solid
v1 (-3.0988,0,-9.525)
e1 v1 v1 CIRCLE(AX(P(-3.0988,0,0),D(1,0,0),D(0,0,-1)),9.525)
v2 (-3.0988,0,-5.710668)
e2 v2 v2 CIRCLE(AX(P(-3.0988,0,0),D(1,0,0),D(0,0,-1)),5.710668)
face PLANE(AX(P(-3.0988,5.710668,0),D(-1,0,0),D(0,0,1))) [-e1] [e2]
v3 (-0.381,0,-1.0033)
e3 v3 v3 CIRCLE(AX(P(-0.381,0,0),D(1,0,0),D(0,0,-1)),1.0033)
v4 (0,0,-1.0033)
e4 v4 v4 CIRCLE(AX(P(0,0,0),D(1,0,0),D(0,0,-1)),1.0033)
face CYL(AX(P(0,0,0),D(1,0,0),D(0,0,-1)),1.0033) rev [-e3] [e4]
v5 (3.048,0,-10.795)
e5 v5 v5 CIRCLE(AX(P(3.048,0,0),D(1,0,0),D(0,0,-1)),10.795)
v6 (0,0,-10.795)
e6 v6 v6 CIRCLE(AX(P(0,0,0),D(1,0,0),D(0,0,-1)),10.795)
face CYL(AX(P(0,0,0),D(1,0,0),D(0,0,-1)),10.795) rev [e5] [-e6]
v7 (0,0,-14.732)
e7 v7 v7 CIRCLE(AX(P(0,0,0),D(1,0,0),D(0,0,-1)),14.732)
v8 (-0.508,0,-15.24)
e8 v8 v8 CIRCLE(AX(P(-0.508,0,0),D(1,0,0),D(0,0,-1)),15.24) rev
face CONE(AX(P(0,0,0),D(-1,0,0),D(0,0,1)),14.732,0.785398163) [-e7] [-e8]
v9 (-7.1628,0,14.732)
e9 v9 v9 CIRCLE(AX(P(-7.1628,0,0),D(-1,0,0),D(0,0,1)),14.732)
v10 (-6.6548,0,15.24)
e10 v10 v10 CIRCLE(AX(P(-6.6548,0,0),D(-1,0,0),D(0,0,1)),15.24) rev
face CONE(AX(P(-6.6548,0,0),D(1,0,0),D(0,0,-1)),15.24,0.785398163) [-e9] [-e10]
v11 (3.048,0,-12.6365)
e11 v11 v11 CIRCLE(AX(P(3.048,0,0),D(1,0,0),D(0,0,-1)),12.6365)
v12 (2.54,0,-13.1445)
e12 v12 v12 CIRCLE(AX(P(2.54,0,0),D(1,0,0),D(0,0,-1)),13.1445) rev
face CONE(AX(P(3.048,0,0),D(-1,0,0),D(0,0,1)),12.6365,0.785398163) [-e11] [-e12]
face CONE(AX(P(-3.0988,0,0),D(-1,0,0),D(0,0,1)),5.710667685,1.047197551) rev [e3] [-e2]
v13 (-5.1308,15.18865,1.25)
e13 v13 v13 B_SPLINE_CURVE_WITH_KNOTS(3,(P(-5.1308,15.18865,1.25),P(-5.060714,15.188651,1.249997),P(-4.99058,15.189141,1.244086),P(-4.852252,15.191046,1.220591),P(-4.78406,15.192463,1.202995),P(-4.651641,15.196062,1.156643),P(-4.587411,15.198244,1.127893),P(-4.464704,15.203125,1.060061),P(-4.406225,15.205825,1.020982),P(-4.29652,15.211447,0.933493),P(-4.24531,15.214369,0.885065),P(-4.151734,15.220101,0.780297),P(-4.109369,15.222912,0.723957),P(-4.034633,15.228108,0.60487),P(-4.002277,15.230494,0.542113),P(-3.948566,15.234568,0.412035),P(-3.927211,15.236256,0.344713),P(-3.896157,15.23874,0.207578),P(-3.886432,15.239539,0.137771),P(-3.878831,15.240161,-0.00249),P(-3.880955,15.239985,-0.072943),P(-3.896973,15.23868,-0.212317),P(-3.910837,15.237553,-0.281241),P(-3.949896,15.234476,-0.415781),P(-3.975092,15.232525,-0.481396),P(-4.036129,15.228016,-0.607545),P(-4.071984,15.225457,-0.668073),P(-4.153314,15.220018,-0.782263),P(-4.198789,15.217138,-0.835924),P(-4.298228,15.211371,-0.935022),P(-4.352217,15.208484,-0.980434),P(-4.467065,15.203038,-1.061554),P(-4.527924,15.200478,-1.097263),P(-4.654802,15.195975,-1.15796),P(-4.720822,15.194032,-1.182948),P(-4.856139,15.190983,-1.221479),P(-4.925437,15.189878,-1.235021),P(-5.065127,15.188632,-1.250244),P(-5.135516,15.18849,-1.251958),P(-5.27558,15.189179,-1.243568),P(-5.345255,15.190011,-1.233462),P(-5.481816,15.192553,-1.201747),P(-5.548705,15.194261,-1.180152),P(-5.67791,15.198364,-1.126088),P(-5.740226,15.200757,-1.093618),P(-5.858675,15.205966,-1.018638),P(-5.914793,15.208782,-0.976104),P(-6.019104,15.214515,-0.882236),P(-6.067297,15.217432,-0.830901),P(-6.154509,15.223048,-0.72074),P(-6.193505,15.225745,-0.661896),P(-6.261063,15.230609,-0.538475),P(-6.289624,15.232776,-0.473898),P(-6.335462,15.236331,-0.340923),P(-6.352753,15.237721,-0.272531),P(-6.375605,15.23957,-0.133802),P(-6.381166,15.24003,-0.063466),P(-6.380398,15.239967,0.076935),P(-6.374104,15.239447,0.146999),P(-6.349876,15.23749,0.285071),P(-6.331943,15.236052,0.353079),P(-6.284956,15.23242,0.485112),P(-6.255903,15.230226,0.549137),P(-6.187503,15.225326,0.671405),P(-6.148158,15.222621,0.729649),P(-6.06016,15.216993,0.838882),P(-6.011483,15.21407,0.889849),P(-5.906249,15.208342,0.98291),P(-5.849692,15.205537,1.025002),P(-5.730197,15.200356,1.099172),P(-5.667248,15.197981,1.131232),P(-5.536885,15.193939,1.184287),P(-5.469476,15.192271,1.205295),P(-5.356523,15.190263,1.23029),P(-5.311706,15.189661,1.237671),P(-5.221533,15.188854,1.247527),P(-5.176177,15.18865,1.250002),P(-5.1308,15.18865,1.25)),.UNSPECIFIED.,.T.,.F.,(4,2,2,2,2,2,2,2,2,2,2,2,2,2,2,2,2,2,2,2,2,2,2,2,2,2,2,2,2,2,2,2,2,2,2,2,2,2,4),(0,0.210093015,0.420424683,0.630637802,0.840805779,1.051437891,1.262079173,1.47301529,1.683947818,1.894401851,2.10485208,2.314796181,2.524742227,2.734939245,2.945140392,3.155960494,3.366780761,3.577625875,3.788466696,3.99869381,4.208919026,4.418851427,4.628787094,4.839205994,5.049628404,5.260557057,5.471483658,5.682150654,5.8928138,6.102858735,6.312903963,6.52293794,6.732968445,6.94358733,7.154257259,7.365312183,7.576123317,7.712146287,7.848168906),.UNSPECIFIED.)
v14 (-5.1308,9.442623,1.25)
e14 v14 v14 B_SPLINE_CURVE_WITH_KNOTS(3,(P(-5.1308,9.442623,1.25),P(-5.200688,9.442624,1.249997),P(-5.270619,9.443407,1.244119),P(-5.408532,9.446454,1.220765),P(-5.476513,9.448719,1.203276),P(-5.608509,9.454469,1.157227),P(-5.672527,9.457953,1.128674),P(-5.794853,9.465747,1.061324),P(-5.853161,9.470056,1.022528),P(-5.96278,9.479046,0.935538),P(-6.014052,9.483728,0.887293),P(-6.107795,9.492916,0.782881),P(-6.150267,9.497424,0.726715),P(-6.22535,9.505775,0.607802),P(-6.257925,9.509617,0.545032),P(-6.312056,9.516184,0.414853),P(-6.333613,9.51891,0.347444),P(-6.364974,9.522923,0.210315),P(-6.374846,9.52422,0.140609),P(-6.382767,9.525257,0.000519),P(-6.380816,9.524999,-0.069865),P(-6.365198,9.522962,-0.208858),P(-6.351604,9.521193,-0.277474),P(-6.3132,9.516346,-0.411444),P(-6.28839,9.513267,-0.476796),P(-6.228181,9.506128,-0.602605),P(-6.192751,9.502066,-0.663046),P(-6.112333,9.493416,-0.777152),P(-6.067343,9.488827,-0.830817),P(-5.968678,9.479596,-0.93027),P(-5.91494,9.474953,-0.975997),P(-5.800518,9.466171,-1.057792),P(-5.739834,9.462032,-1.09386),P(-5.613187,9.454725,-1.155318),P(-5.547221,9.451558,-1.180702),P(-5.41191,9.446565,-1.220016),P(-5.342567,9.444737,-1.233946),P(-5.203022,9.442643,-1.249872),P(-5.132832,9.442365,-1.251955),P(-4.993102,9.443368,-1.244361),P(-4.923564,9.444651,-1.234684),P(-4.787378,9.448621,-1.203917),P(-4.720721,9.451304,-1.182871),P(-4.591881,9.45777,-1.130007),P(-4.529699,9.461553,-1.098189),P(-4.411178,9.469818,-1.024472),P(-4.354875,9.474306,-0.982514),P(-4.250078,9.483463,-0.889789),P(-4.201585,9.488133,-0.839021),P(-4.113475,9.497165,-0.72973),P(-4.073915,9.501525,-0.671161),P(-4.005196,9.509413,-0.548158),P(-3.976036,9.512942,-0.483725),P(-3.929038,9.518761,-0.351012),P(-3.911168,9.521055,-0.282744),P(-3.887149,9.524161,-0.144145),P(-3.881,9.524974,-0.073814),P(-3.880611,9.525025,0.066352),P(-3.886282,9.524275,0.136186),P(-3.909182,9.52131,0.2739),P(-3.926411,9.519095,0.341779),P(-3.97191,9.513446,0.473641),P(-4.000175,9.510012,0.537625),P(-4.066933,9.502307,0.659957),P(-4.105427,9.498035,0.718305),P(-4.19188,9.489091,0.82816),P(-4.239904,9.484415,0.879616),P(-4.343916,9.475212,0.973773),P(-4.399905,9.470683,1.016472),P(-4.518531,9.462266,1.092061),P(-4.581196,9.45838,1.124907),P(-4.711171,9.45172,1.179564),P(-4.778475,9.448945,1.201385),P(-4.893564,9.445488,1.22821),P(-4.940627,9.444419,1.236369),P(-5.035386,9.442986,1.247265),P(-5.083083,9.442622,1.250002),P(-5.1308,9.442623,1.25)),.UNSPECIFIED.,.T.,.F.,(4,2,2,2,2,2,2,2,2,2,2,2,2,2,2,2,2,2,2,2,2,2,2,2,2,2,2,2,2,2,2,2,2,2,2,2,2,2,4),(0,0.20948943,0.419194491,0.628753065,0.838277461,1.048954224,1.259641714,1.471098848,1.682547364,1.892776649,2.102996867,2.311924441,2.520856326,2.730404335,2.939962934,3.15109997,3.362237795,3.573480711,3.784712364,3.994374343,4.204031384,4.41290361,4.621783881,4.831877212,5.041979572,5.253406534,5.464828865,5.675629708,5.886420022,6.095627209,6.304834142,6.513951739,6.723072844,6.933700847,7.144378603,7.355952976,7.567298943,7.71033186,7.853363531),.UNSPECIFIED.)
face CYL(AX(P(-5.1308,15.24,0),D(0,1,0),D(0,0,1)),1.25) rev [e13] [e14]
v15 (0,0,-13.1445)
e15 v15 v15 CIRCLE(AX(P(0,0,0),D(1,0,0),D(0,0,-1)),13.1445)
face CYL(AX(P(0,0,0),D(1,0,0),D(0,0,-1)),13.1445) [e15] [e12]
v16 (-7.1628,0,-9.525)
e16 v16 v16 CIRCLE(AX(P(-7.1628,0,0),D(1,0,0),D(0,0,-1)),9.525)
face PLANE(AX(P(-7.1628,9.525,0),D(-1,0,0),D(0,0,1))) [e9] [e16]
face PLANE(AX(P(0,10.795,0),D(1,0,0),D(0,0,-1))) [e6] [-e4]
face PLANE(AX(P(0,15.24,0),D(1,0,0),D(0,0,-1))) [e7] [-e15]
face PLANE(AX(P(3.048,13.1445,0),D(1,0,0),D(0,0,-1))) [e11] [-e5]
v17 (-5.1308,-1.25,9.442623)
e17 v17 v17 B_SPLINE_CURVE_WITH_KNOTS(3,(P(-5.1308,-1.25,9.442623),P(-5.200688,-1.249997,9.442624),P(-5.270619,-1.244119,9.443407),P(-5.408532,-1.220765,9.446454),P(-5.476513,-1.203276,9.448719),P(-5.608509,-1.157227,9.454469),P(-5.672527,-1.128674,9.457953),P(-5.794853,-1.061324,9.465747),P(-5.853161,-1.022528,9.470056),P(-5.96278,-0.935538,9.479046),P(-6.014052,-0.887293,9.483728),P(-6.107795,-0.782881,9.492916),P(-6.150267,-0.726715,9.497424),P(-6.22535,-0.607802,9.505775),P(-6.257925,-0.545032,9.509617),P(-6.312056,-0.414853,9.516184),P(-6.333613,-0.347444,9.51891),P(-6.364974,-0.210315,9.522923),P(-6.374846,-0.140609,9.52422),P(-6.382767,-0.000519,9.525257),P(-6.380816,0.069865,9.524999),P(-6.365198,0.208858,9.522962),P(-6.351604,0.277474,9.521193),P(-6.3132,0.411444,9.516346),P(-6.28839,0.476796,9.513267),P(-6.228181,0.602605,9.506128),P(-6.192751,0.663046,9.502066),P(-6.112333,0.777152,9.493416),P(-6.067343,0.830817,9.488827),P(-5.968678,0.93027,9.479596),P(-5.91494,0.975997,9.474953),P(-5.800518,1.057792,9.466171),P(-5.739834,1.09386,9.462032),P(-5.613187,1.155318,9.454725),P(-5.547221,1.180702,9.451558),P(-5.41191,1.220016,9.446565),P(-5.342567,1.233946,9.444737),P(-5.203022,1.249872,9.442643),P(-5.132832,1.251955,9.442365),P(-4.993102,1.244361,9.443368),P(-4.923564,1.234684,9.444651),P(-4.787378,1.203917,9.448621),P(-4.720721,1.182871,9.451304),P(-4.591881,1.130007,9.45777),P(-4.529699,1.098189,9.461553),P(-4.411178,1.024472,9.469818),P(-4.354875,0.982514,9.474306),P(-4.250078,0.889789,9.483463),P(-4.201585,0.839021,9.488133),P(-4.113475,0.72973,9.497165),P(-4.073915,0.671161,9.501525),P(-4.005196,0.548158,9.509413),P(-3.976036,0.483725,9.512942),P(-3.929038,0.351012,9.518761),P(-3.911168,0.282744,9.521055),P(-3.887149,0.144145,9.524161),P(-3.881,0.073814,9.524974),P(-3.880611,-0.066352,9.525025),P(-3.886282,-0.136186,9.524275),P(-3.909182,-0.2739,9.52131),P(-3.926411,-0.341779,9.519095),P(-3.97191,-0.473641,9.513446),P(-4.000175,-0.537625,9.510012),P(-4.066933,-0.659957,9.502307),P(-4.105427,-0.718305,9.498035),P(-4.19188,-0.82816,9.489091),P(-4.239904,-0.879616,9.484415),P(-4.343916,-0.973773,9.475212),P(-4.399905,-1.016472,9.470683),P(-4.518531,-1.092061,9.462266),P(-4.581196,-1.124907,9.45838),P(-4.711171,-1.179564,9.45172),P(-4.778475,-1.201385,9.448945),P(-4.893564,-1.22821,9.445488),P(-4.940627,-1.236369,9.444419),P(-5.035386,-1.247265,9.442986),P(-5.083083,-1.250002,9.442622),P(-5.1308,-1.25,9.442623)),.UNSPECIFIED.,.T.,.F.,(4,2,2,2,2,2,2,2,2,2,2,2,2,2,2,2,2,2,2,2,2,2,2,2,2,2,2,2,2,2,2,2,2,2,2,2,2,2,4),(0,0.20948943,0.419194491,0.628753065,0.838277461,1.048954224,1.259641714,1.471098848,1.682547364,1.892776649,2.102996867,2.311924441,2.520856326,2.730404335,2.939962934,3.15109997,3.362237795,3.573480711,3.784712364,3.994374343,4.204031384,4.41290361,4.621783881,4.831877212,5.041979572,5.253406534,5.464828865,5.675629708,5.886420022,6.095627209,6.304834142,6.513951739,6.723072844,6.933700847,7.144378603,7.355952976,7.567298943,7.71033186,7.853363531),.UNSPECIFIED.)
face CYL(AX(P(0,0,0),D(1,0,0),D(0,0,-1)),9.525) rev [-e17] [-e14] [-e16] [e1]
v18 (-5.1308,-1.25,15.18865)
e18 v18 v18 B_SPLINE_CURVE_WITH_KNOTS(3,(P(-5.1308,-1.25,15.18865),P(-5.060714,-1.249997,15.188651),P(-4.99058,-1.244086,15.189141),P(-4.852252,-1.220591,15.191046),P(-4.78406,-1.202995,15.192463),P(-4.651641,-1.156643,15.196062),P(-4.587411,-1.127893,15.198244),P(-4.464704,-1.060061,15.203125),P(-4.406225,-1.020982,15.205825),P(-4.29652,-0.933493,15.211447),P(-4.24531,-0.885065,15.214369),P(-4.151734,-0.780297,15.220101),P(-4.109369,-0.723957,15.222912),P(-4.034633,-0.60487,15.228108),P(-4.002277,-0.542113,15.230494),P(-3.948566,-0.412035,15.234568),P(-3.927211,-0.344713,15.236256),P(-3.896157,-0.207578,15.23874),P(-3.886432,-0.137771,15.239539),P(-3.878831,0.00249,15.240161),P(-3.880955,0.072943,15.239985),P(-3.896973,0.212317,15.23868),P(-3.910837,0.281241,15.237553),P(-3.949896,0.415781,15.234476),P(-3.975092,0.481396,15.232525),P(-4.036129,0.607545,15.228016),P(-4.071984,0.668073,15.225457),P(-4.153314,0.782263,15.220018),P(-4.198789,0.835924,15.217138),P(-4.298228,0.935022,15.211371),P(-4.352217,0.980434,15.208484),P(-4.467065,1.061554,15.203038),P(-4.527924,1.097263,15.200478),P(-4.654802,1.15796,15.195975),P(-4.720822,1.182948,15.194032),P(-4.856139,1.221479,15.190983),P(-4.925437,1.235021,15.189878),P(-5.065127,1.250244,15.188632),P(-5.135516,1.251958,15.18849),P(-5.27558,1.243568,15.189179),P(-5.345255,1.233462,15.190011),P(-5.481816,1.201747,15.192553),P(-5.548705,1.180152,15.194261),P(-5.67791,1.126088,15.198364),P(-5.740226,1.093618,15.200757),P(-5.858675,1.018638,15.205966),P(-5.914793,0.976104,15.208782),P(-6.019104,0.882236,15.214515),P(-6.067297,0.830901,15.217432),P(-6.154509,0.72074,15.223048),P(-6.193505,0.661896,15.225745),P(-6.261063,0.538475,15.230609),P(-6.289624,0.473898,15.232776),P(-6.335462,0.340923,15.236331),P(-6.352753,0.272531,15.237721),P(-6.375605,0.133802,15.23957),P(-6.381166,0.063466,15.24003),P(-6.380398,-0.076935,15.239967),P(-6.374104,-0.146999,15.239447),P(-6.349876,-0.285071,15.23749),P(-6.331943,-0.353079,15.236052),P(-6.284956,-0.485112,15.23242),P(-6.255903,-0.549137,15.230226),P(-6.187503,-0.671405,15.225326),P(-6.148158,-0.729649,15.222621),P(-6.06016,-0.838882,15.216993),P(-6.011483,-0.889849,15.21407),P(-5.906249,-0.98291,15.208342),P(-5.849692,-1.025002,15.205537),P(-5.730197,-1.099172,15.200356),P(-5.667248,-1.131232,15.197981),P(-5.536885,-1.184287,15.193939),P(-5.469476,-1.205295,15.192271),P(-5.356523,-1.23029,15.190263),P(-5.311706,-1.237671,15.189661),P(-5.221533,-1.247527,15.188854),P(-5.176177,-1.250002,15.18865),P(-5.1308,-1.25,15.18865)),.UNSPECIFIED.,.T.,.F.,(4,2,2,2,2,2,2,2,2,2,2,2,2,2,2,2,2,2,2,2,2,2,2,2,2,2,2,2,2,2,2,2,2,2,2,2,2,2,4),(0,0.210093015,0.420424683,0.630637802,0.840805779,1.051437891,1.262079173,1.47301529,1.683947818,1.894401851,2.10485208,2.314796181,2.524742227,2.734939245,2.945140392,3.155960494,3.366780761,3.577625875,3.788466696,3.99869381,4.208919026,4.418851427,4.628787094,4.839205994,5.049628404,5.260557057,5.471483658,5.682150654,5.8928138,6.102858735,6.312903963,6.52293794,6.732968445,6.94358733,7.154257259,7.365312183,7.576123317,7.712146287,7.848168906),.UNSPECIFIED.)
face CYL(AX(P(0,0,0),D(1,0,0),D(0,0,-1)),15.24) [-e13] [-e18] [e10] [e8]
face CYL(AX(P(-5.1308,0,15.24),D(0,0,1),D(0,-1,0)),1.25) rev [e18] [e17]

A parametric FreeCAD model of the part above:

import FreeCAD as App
import Part
import Sketcher
Q = App.Units.Quantity


def edges_at(feature, points):
    """Names of the edges that pass closest to the given points."""
    edges = feature.Shape.Edges
    near = lambda p: min(range(len(edges)), key=lambda i: edges[i].distToShape(Part.Vertex(*p))[0])
    return sorted({f"Edge{near(p) + 1}" for p in points})

doc = App.newDocument("Part")
body = doc.addObject("PartDesign::Body", "Body")

# Sketch on XY plane
sketch1 = body.newObject("Sketcher::SketchObject", "Sketch")
sketch1.AttachmentSupport = (doc.getObject("XY_Plane"), [""])
sketch1.MapMode = "FlatFace"
sketch1.addGeometry([
    Part.LineSegment(App.Vector(-3.1, 5.71, 0), App.Vector(-0.38, 1, 0)),  # 0
    Part.LineSegment(App.Vector(-0.38, 1, 0), App.Vector(0, 1, 0)),  # 1
    Part.LineSegment(App.Vector(0, 1, 0), App.Vector(0, 10.79, 0)),  # 2
    Part.LineSegment(App.Vector(0, 10.79, 0), App.Vector(3.05, 10.79, 0)),  # 3
    Part.LineSegment(App.Vector(3.05, 10.79, 0), App.Vector(3.05, 13.14, 0)),  # 4
    Part.LineSegment(App.Vector(3.05, 13.14, 0), App.Vector(0, 13.14, 0)),  # 5
    Part.LineSegment(App.Vector(0, 13.14, 0), App.Vector(0, 15.24, 0)),  # 6
    Part.LineSegment(App.Vector(0, 15.24, 0), App.Vector(-7.16, 15.24, 0)),  # 7
    Part.LineSegment(App.Vector(-7.16, 15.24, 0), App.Vector(-7.16, 9.53, 0)),  # 8
    Part.LineSegment(App.Vector(-7.16, 9.53, 0), App.Vector(-3.1, 9.53, 0)),  # 9
    Part.LineSegment(App.Vector(-3.1, 9.53, 0), App.Vector(-3.1, 5.71, 0)),  # 10
], False)
sketch1.addConstraint([
    Sketcher.Constraint("Coincident", 0, 2, 1, 1),
    Sketcher.Constraint("Coincident", 1, 2, 2, 1),
    Sketcher.Constraint("Coincident", 2, 2, 3, 1),
    Sketcher.Constraint("Coincident", 3, 2, 4, 1),
    Sketcher.Constraint("Coincident", 4, 2, 5, 1),
    Sketcher.Constraint("Coincident", 5, 2, 6, 1),
    Sketcher.Constraint("Coincident", 6, 2, 7, 1),
    Sketcher.Constraint("Coincident", 7, 2, 8, 1),
    Sketcher.Constraint("Coincident", 8, 2, 9, 1),
    Sketcher.Constraint("Coincident", 9, 2, 10, 1),
    Sketcher.Constraint("Coincident", 10, 2, 0, 1),
    Sketcher.Constraint("Horizontal", 1),
    Sketcher.Constraint("Vertical", 2),
    Sketcher.Constraint("Horizontal", 3),
    Sketcher.Constraint("Vertical", 4),
    Sketcher.Constraint("Horizontal", 5),
    Sketcher.Constraint("Vertical", 6),
    Sketcher.Constraint("Horizontal", 7),
    Sketcher.Constraint("Vertical", 8),
    Sketcher.Constraint("Horizontal", 9),
    Sketcher.Constraint("Vertical", 10),
    Sketcher.Constraint("PointOnObject", 1, 2, -2),
    Sketcher.Constraint("PointOnObject", 5, 2, -2),
    Sketcher.Constraint("Angle", 0, Q("-60 deg")),
    Sketcher.Constraint("DistanceX", 3, 1, 3, 2, Q("0.12 in")),
    Sketcher.Constraint("DistanceX", 9, 1, 9, 2, Q("0.16 in")),
    Sketcher.Constraint("DistanceY", -1, 1, 6, 2, Q("0.6 in")),
    Sketcher.Constraint("DistanceX", 1, 1, 1, 2, Q("0.015 in")),
    Sketcher.Constraint("DistanceX", 7, 2, 7, 1, Q("0.282 in")),
    Sketcher.Constraint("DistanceY", 8, 2, 8, 1, Q("0.225 in")),
    Sketcher.Constraint("DistanceY", 8, 2, 2, 2, Q("0.05 in")),
    Sketcher.Constraint("DistanceY", 2, 1, 2, 2, Q("0.3855 in")),
    Sketcher.Constraint("DistanceY", 4, 1, 4, 2, Q("0.0925 in")),
])
revolution = body.newObject("PartDesign::Revolution", "Revolution")
revolution.Profile = sketch1
revolution.ReferenceAxis = (sketch1, ["H_Axis"])
revolution.Angle = 360

# Sketch on XZ plane
sketch2 = body.newObject("Sketcher::SketchObject", "Sketch001")
sketch2.AttachmentSupport = (doc.getObject("XZ_Plane"), [""])
sketch2.MapMode = "FlatFace"
sketch2.AttachmentOffset = App.Placement(App.Vector(0, 0, -0.6 * 25.4), App.Rotation())
sketch2.addGeometry(Part.Circle(App.Vector(-5.1, 0, 0), App.Vector(0, 0, 1), 1.2), False)
sketch2.addConstraint([
    Sketcher.Constraint("PointOnObject", 0, 3, -1),
    Sketcher.Constraint("Diameter", 0, Q("2.5 mm")),
    Sketcher.Constraint("DistanceX", 0, 3, -1, 1, Q("0.202 in")),
])
pocket1 = body.newObject("PartDesign::Pocket", "Pocket")
pocket1.Profile = sketch2
pocket1.Length = 5.797377
pocket1.Reversed = True

# Sketch on XY plane
sketch3 = body.newObject("Sketcher::SketchObject", "Sketch002")
sketch3.AttachmentSupport = (doc.getObject("XY_Plane"), [""])
sketch3.MapMode = "FlatFace"
sketch3.AttachmentOffset = App.Placement(App.Vector(0, 0, 0.6 * 25.4), App.Rotation())
sketch3.addGeometry(Part.Circle(App.Vector(-5.1, 0, 0), App.Vector(0, 0, 1), 1.2), False)
sketch3.addConstraint([
    Sketcher.Constraint("PointOnObject", 0, 3, -1),
    Sketcher.Constraint("Diameter", 0, Q("2.5 mm")),
    Sketcher.Constraint("DistanceX", 0, 3, -1, 1, Q("0.202 in")),
])
pocket2 = body.newObject("PartDesign::Pocket", "Pocket001")
pocket2.Profile = sketch3
pocket2.Type = "UpToFirst"
doc.recompute()

chamfer = body.newObject("PartDesign::Chamfer", "Chamfer")
chamfer.Base = (pocket2, edges_at(pocket2, [(-7.163, 0, 15.24), (0, 0, 15.24), (3.048, 0, 13.145)]))
chamfer.Size = Q("0.02 in")

doc.recompute()
